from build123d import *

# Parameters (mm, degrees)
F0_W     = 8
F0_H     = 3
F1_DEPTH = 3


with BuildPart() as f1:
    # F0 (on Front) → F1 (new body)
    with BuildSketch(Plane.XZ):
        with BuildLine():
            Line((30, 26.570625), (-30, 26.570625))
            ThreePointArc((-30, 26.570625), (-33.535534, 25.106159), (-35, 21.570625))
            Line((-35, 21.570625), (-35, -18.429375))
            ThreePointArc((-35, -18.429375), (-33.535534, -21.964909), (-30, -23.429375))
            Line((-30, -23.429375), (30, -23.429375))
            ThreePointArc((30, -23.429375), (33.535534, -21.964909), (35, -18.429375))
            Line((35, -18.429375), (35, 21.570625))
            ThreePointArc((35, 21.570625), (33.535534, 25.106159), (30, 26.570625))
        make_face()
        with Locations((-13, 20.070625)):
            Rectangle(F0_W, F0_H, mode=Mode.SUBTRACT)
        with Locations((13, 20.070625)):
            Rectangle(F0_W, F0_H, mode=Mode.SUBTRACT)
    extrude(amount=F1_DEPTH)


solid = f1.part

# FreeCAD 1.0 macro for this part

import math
import FreeCAD as App
import Part
import Sketcher
from FreeCAD import Vector


def add_polygon(sketch, points):
    """Adds a closed chain of lines whose ends are joined by coincident constraints."""
    first, n = sketch.GeometryCount, len(points)
    for a, b in zip(points, points[1:] + points[:1]):
        sketch.addGeometry(Part.LineSegment(App.Vector(*a, 0), App.Vector(*b, 0)), False)
    for i in range(n):
        sketch.addConstraint(Sketcher.Constraint("Coincident", first + i, 2, first + (i + 1) % n, 1))

doc = App.newDocument("Part")
body = doc.addObject("PartDesign::Body", "Body")

# Sketch on XZ plane
sketch1 = doc.addObject("Sketcher::SketchObject", "Sketch")
body.addObject(sketch1)
sketch1.AttachmentSupport = (doc.XZ_Plane, [""])
sketch1.MapMode = "FlatFace"
sketch1.addGeometry(Part.LineSegment(Vector(30, 26.6, 0), Vector(-30, 26.6, 0)), False)  # 0
sketch1.addGeometry(Part.ArcOfCircle(Part.Circle(Vector(-30, 21.6, 0), Vector(0, 0, 1), 5), math.radians(90), math.radians(180)), False)  # 1
sketch1.addGeometry(Part.LineSegment(Vector(-35, 21.6, 0), Vector(-35, -18.4, 0)), False)  # 2
sketch1.addGeometry(Part.ArcOfCircle(Part.Circle(Vector(-30, -18.4, 0), Vector(0, 0, 1), 5), math.radians(180), math.radians(270)), False)  # 3
sketch1.addGeometry(Part.LineSegment(Vector(-30, -23.4, 0), Vector(30, -23.4, 0)), False)  # 4
sketch1.addGeometry(Part.ArcOfCircle(Part.Circle(Vector(30, -18.4, 0), Vector(0, 0, 1), 5), math.radians(-90), math.radians(0)), False)  # 5
sketch1.addGeometry(Part.LineSegment(Vector(35, -18.4, 0), Vector(35, 21.6, 0)), False)  # 6
sketch1.addGeometry(Part.ArcOfCircle(Part.Circle(Vector(30, 21.6, 0), Vector(0, 0, 1), 5), math.radians(0), math.radians(90)), False)  # 7
add_polygon(sketch1, [(-9, 18.6), (-17, 18.6), (-17, 21.6), (-9, 21.6)])  # lines 8-11
add_polygon(sketch1, [(17, 18.6), (9, 18.6), (9, 21.6), (17, 21.6)])  # lines 12-15
sketch1.addConstraint([
    Sketcher.Constraint("Tangent", 0, 2, 1, 1),
    Sketcher.Constraint("Tangent", 1, 2, 2, 1),
    Sketcher.Constraint("Tangent", 2, 2, 3, 1),
    Sketcher.Constraint("Tangent", 3, 2, 4, 1),
    Sketcher.Constraint("Tangent", 4, 2, 5, 1),
    Sketcher.Constraint("Tangent", 5, 2, 6, 1),
    Sketcher.Constraint("Tangent", 6, 2, 7, 1),
    Sketcher.Constraint("Tangent", 7, 2, 0, 1),
    Sketcher.Constraint("Horizontal", 0),
    Sketcher.Constraint("Vertical", 2),
    Sketcher.Constraint("Horizontal", 4),
    Sketcher.Constraint("Vertical", 6),
    Sketcher.Constraint("Horizontal", 8),
    Sketcher.Constraint("Vertical", 9),
    Sketcher.Constraint("Horizontal", 10),
    Sketcher.Constraint("Vertical", 11),
    Sketcher.Constraint("Horizontal", 12),
    Sketcher.Constraint("Vertical", 13),
    Sketcher.Constraint("Horizontal", 14),
    Sketcher.Constraint("Vertical", 15),
    Sketcher.Constraint("Equal", 1, 3),
    Sketcher.Constraint("Equal", 3, 5),
    Sketcher.Constraint("Equal", 5, 7),
    Sketcher.Constraint("Symmetric", 11, 2, 12, 2, -2),
    Sketcher.Constraint("Symmetric", 9, 2, 14, 2, -2),
    Sketcher.Constraint("Horizontal", 6, 2, 9, 2),
    Sketcher.Constraint("Radius", 1, 5.0),
    Sketcher.Constraint("DistanceX", 0, 2, 0, 1, 60.0),
    Sketcher.Constraint("DistanceX", 8, 2, 8, 1, 8.0),
    Sketcher.Constraint("DistanceY", 2, 2, 2, 1, 40.0),
    Sketcher.Constraint("DistanceY", 9, 1, 9, 2, 3.0),
    Sketcher.Constraint("DistanceX", 1, 3, -1, 1, 30.0),
    Sketcher.Constraint("DistanceX", 8, 2, -1, 1, 17.0),
    Sketcher.Constraint("DistanceY", -1, 1, 1, 3, 21.570625),
])
pad1 = doc.addObject("PartDesign::Pad", "Pad")
body.addObject(pad1)
pad1.Profile = sketch1
pad1.Length = 3

doc.recompute()
